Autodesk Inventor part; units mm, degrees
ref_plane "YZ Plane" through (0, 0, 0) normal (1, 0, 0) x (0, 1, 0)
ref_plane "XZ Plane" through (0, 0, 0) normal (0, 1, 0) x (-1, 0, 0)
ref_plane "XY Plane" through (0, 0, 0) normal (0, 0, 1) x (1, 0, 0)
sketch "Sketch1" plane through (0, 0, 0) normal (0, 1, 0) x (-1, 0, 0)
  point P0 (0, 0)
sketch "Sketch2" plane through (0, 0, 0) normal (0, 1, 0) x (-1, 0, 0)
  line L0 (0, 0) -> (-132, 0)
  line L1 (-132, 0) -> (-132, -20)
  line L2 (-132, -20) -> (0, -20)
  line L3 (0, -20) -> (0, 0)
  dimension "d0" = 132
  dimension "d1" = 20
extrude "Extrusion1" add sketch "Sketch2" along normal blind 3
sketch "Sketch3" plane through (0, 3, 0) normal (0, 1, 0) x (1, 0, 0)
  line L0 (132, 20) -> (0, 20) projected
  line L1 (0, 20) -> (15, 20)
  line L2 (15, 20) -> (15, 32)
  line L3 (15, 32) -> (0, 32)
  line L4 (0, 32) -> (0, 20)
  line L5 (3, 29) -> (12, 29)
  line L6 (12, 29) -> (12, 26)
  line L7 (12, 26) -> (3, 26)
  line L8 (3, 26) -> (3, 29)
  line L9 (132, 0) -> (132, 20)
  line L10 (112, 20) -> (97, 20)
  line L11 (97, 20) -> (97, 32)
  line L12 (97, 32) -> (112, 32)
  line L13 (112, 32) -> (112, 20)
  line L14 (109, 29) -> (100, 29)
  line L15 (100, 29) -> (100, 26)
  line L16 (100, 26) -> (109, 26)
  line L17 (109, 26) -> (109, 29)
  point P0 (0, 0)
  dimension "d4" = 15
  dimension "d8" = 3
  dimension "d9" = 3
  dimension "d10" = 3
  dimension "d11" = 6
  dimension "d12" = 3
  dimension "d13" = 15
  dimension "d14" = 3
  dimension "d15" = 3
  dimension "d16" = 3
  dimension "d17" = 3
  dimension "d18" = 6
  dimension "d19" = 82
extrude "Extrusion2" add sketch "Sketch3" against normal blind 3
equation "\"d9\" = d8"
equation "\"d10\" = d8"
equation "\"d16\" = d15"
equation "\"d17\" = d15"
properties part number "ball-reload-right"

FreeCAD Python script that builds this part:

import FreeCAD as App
import Part
import Sketcher

V = App.Vector
Q = App.Units.Quantity


def add_polygon(sketch, points):
    """Adds a closed chain of lines whose ends are joined by coincident constraints."""
    first, n = sketch.GeometryCount, len(points)
    for a, b in zip(points, points[1:] + points[:1]):
        sketch.addGeometry(Part.LineSegment(App.Vector(*a, 0), App.Vector(*b, 0)), False)
    for i in range(n):
        sketch.addConstraint(Sketcher.Constraint("Coincident", first + i, 2, first + (i + 1) % n, 1))

doc = App.newDocument("Part")
body = doc.addObject("PartDesign::Body", "Body")

# Sketch on XZ plane
sketch1 = body.newObject("Sketcher::SketchObject", "Sketch")
sketch1.AttachmentSupport = (doc.getObject("XZ_Plane"), [""])
sketch1.MapMode = "FlatFace"
add_polygon(sketch1, [(0, -20), (0, 0), (132, 0), (132, -20)])  # lines 0-3
sketch1.addConstraint([
    Sketcher.Constraint("Vertical", 0),
    Sketcher.Constraint("Horizontal", 1),
    Sketcher.Constraint("Vertical", 2),
    Sketcher.Constraint("Horizontal", 3),
    Sketcher.Constraint("Coincident", 0, 2, -1, 1),
    Sketcher.Constraint("DistanceX", 1, 1, 1, 2, Q("132 mm")),
    Sketcher.Constraint("DistanceY", 0, 1, 0, 2, Q("20 mm")),
])
pad1 = body.newObject("PartDesign::Pad", "Pad")
pad1.Profile = sketch1
pad1.Length = 3
pad1.Reversed = True

# Sketch on XZ plane
sketch2 = body.newObject("Sketcher::SketchObject", "Sketch001")
sketch2.AttachmentSupport = (doc.getObject("XZ_Plane"), [""])
sketch2.MapMode = "FlatFace"
sketch2.AttachmentOffset = App.Placement(V(0, 0, -3), App.Rotation())
add_polygon(sketch2, [(0, -20), (15, -20), (15, -32), (0, -32)])  # lines 0-3
add_polygon(sketch2, [(3, -26), (3, -29), (12, -29), (12, -26)])  # lines 4-7
add_polygon(sketch2, [(97, -20), (112, -20), (112, -32), (97, -32)])  # lines 8-11
add_polygon(sketch2, [(100, -29), (109, -29), (109, -26), (100, -26)])  # lines 12-15
sketch2.addConstraint([
    Sketcher.Constraint("Horizontal", 0),
    Sketcher.Constraint("Vertical", 1),
    Sketcher.Constraint("Horizontal", 2),
    Sketcher.Constraint("Vertical", 3),
    Sketcher.Constraint("Vertical", 4),
    Sketcher.Constraint("Horizontal", 5),
    Sketcher.Constraint("Vertical", 6),
    Sketcher.Constraint("Horizontal", 7),
    Sketcher.Constraint("Horizontal", 8),
    Sketcher.Constraint("Vertical", 9),
    Sketcher.Constraint("Horizontal", 10),
    Sketcher.Constraint("Vertical", 11),
    Sketcher.Constraint("Horizontal", 12),
    Sketcher.Constraint("Vertical", 13),
    Sketcher.Constraint("Horizontal", 14),
    Sketcher.Constraint("Vertical", 15),
    Sketcher.Constraint("PointOnObject", 2, 2, -2),
    Sketcher.Constraint("Horizontal", 3, 2, 8, 2),
    Sketcher.Constraint("Horizontal", 2, 2, 9, 2),
    Sketcher.Constraint("Horizontal", 5, 2, 12, 2),
    Sketcher.Constraint("Horizontal", 7, 2, 13, 2),
    Sketcher.Constraint("Equal", 2, 8),
    Sketcher.Constraint("Equal", 7, 12),
    Sketcher.Constraint("DistanceX", 0, 1, 0, 2, Q("15 mm")),
    Sketcher.Constraint("DistanceY", 4, 2, 4, 1, Q("3 mm")),
    Sketcher.Constraint("DistanceX", -1, 1, 4, 2, Q("3 mm")),
    Sketcher.Constraint("DistanceY", 2, 2, 4, 2, Q("3 mm")),
    Sketcher.Constraint("DistanceX", 5, 2, 1, 2, Q("3 mm")),
    Sketcher.Constraint("DistanceY", 6, 2, 0, 2, Q("6 mm")),
    Sketcher.Constraint("DistanceX", 1, 2, 10, 2, Q("82 mm")),
    Sketcher.Constraint("DistanceX", 12, 2, 9, 2, Q("3 mm")),
    Sketcher.Constraint("DistanceY", 0, 2, -1, 1, Q("20 mm")),
])
pad2 = body.newObject("PartDesign::Pad", "Pad001")
pad2.Profile = sketch2
pad2.Length = 3

doc.recompute()
